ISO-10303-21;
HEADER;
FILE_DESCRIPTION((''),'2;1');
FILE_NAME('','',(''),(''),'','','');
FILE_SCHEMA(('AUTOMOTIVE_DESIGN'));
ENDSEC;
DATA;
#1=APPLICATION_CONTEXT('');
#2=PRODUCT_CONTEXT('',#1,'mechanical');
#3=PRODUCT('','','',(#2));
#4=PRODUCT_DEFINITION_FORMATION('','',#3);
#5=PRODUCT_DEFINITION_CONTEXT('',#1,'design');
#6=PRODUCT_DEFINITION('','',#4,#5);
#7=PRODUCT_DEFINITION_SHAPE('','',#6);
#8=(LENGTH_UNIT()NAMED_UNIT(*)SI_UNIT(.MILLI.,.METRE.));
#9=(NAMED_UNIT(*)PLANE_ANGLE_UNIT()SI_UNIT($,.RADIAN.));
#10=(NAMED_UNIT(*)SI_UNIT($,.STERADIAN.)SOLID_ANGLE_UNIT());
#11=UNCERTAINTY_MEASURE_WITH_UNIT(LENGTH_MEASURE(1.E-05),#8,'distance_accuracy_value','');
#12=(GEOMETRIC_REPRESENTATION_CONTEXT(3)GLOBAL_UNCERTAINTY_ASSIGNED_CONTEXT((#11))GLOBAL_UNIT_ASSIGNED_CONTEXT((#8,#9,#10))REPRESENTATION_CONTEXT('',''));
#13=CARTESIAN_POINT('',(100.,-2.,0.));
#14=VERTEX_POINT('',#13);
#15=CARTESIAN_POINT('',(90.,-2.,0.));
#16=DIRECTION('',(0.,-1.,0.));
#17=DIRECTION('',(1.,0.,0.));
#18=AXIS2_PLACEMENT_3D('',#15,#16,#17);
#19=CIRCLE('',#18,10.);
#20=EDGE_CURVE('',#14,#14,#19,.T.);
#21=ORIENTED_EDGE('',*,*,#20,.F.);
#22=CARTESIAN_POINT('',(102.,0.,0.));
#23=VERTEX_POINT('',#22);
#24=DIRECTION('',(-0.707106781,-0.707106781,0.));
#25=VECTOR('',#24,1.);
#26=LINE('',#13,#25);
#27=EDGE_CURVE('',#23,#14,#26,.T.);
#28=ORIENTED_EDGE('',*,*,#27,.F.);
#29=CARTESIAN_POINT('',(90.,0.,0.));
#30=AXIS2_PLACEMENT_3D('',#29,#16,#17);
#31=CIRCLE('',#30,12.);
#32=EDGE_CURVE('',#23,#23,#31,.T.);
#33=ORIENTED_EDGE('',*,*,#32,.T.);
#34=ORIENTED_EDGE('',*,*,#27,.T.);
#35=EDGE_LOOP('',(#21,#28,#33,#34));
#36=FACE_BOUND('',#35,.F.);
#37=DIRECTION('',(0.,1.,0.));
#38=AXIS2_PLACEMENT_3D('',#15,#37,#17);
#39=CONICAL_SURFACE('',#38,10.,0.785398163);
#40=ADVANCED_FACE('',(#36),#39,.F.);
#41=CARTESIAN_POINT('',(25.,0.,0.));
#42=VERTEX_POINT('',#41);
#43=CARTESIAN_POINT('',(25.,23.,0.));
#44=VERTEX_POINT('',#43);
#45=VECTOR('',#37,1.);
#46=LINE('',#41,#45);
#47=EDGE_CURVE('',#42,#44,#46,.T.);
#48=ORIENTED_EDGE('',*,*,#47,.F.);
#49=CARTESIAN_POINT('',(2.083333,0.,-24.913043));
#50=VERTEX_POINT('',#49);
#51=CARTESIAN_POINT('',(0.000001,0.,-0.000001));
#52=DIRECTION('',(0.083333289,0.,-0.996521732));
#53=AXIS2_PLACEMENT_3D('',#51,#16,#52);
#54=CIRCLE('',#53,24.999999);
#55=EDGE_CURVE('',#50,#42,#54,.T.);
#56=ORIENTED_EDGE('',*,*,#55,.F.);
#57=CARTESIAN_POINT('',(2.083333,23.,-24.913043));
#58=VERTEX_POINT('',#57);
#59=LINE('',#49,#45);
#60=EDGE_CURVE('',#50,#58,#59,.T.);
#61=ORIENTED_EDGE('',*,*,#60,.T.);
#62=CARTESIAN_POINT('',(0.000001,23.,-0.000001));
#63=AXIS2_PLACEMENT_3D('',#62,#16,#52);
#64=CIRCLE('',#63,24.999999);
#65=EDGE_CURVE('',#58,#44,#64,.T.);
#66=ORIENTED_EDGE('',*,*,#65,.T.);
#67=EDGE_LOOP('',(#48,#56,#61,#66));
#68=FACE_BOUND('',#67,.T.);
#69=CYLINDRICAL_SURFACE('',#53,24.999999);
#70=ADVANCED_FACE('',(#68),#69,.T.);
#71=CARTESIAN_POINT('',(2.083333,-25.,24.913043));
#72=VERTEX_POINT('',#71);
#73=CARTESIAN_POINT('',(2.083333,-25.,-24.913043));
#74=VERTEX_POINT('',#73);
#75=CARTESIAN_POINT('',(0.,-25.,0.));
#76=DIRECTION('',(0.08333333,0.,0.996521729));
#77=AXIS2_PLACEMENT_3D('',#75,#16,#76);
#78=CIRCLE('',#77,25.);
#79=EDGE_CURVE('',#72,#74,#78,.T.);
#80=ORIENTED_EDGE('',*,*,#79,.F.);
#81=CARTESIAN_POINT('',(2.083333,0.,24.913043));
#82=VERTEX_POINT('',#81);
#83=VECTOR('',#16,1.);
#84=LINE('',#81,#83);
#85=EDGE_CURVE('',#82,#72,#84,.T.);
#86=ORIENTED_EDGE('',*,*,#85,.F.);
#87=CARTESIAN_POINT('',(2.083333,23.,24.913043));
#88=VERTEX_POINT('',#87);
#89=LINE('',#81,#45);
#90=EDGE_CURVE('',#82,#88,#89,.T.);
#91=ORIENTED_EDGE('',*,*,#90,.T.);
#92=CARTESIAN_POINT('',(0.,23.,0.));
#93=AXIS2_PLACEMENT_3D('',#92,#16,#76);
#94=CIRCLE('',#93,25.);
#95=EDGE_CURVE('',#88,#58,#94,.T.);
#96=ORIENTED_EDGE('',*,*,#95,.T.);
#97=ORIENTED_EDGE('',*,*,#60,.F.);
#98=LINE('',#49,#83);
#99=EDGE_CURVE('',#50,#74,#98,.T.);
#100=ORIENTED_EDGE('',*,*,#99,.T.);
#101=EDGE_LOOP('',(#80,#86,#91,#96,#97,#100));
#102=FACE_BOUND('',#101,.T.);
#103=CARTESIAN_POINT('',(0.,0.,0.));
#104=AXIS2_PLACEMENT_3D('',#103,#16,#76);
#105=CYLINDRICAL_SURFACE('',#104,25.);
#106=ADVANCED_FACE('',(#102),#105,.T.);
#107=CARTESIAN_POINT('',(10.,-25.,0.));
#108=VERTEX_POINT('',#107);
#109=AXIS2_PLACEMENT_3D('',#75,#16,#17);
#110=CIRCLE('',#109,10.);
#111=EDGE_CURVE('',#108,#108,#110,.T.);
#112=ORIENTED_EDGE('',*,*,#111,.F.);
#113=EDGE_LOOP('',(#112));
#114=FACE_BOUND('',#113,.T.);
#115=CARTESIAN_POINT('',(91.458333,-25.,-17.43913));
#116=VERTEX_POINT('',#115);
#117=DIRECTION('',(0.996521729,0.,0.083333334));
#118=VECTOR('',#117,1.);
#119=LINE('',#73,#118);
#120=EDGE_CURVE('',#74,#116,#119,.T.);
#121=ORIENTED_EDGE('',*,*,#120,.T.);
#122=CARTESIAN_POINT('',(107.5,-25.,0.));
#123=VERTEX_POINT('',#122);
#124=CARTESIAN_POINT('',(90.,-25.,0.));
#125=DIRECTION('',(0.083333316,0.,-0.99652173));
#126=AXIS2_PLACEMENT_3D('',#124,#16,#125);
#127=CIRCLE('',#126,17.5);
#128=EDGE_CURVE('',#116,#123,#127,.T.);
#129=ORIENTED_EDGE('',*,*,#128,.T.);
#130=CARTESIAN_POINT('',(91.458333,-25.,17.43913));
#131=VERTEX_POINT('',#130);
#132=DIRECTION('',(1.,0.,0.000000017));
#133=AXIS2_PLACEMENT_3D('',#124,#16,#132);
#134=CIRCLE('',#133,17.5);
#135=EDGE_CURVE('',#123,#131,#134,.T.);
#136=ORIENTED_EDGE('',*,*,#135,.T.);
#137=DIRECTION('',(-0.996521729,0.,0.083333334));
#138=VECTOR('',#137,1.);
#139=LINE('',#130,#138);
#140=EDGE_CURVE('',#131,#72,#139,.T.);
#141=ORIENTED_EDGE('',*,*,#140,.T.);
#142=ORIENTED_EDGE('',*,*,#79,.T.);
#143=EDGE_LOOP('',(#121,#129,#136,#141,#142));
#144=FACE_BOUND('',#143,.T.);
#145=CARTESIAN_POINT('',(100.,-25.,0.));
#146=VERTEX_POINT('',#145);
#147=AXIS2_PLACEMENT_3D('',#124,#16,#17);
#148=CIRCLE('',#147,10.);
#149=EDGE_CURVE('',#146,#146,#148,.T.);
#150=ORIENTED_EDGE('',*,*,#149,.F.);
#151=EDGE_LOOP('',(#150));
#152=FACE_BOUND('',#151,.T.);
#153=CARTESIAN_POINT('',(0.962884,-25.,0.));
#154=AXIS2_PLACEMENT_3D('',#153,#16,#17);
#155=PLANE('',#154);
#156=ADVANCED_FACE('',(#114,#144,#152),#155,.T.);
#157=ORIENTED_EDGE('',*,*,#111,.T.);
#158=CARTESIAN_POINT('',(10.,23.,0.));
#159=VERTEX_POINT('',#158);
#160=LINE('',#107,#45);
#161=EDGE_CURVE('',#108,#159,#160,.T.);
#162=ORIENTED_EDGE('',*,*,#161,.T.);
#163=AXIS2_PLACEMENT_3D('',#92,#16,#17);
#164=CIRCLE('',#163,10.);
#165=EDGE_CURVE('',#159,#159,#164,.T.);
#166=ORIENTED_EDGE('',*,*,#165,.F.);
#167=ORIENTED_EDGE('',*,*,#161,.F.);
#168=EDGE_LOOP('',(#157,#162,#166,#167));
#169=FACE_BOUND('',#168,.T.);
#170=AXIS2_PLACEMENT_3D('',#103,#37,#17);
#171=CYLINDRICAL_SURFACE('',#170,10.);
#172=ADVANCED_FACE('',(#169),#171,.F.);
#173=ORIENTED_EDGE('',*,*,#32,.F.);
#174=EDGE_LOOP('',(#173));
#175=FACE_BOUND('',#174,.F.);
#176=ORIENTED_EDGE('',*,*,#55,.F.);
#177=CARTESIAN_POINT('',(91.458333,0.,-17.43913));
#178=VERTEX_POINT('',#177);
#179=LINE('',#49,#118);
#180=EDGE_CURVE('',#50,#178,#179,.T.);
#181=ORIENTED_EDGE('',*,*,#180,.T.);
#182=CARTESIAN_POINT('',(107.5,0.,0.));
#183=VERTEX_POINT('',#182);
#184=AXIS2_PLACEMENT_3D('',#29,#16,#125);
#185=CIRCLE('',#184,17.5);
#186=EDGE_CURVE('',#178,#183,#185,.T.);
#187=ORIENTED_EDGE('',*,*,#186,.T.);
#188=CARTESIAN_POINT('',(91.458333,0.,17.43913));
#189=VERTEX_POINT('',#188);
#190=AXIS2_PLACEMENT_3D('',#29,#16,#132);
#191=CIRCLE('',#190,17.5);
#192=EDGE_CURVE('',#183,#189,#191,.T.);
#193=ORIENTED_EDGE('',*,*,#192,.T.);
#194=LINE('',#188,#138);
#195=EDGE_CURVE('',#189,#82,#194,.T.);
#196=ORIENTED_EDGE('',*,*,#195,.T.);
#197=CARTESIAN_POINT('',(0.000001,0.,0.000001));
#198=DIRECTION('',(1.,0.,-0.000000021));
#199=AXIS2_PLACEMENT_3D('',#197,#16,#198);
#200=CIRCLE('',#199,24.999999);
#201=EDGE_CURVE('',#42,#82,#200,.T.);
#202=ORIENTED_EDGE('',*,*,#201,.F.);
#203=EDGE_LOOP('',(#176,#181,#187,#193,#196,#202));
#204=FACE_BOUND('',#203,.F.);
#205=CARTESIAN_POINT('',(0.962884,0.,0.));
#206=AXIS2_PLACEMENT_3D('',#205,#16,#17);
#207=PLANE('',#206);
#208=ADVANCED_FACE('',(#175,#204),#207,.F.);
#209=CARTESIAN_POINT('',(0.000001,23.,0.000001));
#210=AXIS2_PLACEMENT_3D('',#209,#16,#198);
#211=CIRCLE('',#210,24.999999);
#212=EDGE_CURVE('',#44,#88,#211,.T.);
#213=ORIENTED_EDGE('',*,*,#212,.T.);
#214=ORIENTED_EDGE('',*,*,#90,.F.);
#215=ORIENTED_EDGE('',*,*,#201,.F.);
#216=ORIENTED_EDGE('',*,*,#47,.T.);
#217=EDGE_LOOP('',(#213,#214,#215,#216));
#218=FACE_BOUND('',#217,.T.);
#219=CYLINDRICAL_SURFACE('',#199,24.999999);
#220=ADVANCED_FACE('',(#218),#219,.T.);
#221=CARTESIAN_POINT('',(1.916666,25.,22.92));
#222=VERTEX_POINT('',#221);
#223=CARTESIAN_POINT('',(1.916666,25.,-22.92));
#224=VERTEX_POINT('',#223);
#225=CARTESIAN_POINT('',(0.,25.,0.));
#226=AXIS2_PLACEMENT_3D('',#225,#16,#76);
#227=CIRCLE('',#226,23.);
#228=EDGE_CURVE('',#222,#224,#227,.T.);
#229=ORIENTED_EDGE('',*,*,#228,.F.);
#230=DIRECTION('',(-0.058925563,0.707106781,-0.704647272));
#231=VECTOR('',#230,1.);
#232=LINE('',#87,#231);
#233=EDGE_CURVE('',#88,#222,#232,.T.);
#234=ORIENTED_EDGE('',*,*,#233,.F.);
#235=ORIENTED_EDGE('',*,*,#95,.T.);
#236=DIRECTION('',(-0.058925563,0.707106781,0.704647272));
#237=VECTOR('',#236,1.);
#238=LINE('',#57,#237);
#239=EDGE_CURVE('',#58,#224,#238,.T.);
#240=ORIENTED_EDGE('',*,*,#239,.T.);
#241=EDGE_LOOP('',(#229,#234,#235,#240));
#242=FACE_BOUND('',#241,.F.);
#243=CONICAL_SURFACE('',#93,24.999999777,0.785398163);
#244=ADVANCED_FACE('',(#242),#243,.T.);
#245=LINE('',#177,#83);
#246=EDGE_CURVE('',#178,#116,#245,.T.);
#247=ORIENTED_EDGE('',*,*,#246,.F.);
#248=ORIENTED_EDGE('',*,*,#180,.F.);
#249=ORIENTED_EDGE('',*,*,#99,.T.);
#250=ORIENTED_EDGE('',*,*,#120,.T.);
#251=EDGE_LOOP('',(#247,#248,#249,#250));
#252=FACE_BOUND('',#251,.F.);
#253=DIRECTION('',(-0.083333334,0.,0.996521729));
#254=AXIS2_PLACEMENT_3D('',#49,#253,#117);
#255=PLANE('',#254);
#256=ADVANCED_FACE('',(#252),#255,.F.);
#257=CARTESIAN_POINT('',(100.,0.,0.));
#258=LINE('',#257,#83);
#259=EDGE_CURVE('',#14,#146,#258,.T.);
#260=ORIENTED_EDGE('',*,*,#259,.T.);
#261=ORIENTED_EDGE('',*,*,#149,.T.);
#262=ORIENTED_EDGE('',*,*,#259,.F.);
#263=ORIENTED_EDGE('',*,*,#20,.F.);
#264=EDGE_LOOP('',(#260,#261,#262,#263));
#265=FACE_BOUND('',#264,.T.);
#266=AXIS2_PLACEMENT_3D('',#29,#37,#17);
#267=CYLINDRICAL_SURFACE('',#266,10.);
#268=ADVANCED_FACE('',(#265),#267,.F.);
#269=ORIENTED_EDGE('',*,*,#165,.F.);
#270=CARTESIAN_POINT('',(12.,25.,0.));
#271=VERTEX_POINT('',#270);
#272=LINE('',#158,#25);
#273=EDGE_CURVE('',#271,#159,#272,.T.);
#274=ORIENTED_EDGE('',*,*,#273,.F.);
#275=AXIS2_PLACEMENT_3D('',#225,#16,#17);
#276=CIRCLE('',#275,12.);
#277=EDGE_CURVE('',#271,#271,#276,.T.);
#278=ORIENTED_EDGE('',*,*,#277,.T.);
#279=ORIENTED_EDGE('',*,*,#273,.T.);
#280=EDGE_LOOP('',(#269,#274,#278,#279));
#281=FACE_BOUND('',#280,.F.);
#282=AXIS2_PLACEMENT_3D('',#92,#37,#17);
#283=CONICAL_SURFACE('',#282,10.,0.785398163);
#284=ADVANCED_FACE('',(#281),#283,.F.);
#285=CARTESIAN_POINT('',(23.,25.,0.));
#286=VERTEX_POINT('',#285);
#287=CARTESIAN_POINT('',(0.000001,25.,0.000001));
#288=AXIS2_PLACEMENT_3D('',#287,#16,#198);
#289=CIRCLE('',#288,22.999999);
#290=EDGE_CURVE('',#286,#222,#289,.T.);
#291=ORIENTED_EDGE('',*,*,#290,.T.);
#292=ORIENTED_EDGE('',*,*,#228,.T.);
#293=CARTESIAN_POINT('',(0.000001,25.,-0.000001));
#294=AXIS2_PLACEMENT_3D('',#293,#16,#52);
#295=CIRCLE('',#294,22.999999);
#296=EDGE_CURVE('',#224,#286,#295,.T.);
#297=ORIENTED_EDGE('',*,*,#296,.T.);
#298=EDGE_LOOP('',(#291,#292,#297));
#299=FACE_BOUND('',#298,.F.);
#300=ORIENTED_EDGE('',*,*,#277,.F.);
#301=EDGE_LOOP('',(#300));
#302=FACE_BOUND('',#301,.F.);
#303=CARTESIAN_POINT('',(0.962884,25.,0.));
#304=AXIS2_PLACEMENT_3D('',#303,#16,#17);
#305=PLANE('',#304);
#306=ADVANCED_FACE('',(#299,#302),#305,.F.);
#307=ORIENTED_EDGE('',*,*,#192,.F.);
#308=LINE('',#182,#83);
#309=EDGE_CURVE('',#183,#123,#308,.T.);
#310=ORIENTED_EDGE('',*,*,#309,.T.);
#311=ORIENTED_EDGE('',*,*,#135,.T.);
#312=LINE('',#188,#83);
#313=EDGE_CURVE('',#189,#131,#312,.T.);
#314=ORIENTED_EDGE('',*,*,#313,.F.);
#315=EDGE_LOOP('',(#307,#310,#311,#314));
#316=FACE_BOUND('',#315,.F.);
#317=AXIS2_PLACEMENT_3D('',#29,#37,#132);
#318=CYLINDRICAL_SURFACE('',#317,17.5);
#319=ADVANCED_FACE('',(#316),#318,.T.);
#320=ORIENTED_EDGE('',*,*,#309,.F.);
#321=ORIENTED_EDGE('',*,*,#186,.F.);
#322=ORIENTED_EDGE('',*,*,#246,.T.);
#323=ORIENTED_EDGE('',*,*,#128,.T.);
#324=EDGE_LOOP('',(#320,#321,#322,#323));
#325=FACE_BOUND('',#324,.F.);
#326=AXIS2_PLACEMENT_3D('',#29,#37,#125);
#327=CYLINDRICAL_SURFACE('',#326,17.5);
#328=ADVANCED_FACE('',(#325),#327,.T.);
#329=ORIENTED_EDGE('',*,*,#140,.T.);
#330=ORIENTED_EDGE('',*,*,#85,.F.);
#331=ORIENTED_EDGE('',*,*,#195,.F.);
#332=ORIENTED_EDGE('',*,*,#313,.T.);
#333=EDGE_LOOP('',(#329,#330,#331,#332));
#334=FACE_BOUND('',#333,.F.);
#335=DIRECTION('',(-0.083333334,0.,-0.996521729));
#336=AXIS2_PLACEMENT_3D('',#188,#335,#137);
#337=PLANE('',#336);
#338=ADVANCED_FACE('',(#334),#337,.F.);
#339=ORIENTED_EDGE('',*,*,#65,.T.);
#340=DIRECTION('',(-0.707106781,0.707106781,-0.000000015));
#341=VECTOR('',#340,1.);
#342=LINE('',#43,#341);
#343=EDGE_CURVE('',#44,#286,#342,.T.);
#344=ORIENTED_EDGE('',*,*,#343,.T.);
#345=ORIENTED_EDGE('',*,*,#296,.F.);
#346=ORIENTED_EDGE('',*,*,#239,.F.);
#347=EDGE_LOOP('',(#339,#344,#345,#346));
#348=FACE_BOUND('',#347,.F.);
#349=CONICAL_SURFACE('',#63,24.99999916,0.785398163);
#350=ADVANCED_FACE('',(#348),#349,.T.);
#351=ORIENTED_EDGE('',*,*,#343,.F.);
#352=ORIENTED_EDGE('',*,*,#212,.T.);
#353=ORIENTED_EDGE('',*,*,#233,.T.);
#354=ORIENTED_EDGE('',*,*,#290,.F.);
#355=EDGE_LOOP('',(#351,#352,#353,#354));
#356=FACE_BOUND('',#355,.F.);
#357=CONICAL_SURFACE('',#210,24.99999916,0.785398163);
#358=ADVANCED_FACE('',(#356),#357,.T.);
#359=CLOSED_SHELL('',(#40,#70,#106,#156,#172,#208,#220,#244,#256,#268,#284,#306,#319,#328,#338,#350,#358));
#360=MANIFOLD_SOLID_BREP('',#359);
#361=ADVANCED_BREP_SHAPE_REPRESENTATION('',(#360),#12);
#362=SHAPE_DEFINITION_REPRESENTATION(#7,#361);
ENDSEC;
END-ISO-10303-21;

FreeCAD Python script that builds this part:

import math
import FreeCAD as App
import Part
import Sketcher
from FreeCAD import Vector
Q = App.Units.Quantity


def edges_at(feature, points):
    """Names of the edges that pass closest to the given points."""
    edges = feature.Shape.Edges
    near = lambda p: min(range(len(edges)), key=lambda i: edges[i].distToShape(Part.Vertex(*p))[0])
    return sorted({f"Edge{near(p) + 1}" for p in points})

doc = App.newDocument("Part")
body = doc.addObject("PartDesign::Body", "Body")

sketch1 = doc.addObject("Sketcher::SketchObject", "Sketch")
body.addObject(sketch1)
sketch1.AttachmentSupport = (doc.XZ_Plane, [""])
sketch1.MapMode = "FlatFace"
sketch1.addGeometry([
    Part.ArcOfCircle(Part.Circle(Vector(0, 0, 0), Vector(0, 0, 1), 25), math.radians(85), math.radians(275)),
    Part.LineSegment(Vector(2, -25, 0), Vector(91, -17, 0)),
    Part.ArcOfCircle(Part.Circle(Vector(90, 0, 0), Vector(0, 0, 1), 18), math.radians(-85), math.radians(0)),
    Part.ArcOfCircle(Part.Circle(Vector(90, 0, 0), Vector(0, 0, 1), 18), math.radians(0), math.radians(85)),
    Part.LineSegment(Vector(91, 17, 0), Vector(2, 25, 0)),
    Part.Circle(Vector(0, 0, 0), Vector(0, 0, 1), 10),
    Part.Circle(Vector(90, 0, 0), Vector(0, 0, 1), 10),
], False)
sketch1.addConstraint([
    Sketcher.Constraint("Tangent", 0, 2, 1, 1),
    Sketcher.Constraint("Tangent", 1, 2, 2, 1),
    Sketcher.Constraint("Tangent", 2, 2, 3, 1),
    Sketcher.Constraint("Tangent", 3, 2, 4, 1),
    Sketcher.Constraint("Tangent", 4, 2, 0, 1),
    Sketcher.Constraint("Coincident", 0, 3, -1, 1),
    Sketcher.Constraint("Coincident", 5, 3, -1, 1),
    Sketcher.Constraint("Coincident", 6, 3, 2, 3),
    Sketcher.Constraint("Equal", 2, 3),
    Sketcher.Constraint("Equal", 5, 6),
    Sketcher.Constraint("PointOnObject", 2, 3, -1),
    Sketcher.Constraint("PointOnObject", 2, 2, -1),
    Sketcher.Constraint("Diameter", 5, Q("20 mm")),
    Sketcher.Constraint("Radius", 0, Q("25 mm")),
    Sketcher.Constraint("Radius", 2, Q("17.5 mm")),
    Sketcher.Constraint("DistanceX", -1, 1, 2, 3, Q("90 mm")),
])
pad1 = doc.addObject("PartDesign::Pad", "Pad")
body.addObject(pad1)
pad1.Profile = sketch1
pad1.Length = 25

sketch2 = doc.addObject("Sketcher::SketchObject", "Sketch001")
body.addObject(sketch2)
sketch2.AttachmentSupport = (doc.XZ_Plane, [""])
sketch2.MapMode = "FlatFace"
sketch2.addGeometry([
    Part.ArcOfCircle(Part.Circle(Vector(0, 0, 0), Vector(0, 0, 1), 25), math.radians(-85), math.radians(0)),
    Part.ArcOfCircle(Part.Circle(Vector(0, 0, 0), Vector(0, 0, 1), 25), math.radians(0), math.radians(85)),
    Part.ArcOfCircle(Part.Circle(Vector(0, 0, 0), Vector(0, 0, 1), 25), math.radians(85), math.radians(275)),
    Part.Circle(Vector(0, 0, 0), Vector(0, 0, 1), 10),
], False)
sketch2.addConstraint([
    Sketcher.Constraint("Tangent", 0, 2, 1, 1),
    Sketcher.Constraint("Tangent", 1, 2, 2, 1),
    Sketcher.Constraint("Tangent", 2, 2, 0, 1),
    Sketcher.Constraint("Coincident", 0, 3, -1, 1),
    Sketcher.Constraint("Coincident", 3, 3, -1, 1),
    Sketcher.Constraint("PointOnObject", 0, 2, -1),
    Sketcher.Constraint("Vertical", 1, 2, 2, 2),
    Sketcher.Constraint("Diameter", 3, Q("20 mm")),
    Sketcher.Constraint("Radius", 0, Q("24.999999 mm")),
    Sketcher.Constraint("DistanceX", -1, 1, 1, 2, Q("2.083333 mm")),
])
pad2 = doc.addObject("PartDesign::Pad", "Pad001")
body.addObject(pad2)
pad2.Profile = sketch2
pad2.Type = "TwoLengths"
pad2.Length = 25
pad2.Length2 = 25
doc.recompute()

chamfer = doc.addObject("PartDesign::Chamfer", "Chamfer")
body.addObject(chamfer)
chamfer.Base = (pad2, edges_at(pad2, [(80, 0, 0), (-25, 25, 0), (-10, 25, 0)]))
chamfer.Size = 2

doc.recompute()
